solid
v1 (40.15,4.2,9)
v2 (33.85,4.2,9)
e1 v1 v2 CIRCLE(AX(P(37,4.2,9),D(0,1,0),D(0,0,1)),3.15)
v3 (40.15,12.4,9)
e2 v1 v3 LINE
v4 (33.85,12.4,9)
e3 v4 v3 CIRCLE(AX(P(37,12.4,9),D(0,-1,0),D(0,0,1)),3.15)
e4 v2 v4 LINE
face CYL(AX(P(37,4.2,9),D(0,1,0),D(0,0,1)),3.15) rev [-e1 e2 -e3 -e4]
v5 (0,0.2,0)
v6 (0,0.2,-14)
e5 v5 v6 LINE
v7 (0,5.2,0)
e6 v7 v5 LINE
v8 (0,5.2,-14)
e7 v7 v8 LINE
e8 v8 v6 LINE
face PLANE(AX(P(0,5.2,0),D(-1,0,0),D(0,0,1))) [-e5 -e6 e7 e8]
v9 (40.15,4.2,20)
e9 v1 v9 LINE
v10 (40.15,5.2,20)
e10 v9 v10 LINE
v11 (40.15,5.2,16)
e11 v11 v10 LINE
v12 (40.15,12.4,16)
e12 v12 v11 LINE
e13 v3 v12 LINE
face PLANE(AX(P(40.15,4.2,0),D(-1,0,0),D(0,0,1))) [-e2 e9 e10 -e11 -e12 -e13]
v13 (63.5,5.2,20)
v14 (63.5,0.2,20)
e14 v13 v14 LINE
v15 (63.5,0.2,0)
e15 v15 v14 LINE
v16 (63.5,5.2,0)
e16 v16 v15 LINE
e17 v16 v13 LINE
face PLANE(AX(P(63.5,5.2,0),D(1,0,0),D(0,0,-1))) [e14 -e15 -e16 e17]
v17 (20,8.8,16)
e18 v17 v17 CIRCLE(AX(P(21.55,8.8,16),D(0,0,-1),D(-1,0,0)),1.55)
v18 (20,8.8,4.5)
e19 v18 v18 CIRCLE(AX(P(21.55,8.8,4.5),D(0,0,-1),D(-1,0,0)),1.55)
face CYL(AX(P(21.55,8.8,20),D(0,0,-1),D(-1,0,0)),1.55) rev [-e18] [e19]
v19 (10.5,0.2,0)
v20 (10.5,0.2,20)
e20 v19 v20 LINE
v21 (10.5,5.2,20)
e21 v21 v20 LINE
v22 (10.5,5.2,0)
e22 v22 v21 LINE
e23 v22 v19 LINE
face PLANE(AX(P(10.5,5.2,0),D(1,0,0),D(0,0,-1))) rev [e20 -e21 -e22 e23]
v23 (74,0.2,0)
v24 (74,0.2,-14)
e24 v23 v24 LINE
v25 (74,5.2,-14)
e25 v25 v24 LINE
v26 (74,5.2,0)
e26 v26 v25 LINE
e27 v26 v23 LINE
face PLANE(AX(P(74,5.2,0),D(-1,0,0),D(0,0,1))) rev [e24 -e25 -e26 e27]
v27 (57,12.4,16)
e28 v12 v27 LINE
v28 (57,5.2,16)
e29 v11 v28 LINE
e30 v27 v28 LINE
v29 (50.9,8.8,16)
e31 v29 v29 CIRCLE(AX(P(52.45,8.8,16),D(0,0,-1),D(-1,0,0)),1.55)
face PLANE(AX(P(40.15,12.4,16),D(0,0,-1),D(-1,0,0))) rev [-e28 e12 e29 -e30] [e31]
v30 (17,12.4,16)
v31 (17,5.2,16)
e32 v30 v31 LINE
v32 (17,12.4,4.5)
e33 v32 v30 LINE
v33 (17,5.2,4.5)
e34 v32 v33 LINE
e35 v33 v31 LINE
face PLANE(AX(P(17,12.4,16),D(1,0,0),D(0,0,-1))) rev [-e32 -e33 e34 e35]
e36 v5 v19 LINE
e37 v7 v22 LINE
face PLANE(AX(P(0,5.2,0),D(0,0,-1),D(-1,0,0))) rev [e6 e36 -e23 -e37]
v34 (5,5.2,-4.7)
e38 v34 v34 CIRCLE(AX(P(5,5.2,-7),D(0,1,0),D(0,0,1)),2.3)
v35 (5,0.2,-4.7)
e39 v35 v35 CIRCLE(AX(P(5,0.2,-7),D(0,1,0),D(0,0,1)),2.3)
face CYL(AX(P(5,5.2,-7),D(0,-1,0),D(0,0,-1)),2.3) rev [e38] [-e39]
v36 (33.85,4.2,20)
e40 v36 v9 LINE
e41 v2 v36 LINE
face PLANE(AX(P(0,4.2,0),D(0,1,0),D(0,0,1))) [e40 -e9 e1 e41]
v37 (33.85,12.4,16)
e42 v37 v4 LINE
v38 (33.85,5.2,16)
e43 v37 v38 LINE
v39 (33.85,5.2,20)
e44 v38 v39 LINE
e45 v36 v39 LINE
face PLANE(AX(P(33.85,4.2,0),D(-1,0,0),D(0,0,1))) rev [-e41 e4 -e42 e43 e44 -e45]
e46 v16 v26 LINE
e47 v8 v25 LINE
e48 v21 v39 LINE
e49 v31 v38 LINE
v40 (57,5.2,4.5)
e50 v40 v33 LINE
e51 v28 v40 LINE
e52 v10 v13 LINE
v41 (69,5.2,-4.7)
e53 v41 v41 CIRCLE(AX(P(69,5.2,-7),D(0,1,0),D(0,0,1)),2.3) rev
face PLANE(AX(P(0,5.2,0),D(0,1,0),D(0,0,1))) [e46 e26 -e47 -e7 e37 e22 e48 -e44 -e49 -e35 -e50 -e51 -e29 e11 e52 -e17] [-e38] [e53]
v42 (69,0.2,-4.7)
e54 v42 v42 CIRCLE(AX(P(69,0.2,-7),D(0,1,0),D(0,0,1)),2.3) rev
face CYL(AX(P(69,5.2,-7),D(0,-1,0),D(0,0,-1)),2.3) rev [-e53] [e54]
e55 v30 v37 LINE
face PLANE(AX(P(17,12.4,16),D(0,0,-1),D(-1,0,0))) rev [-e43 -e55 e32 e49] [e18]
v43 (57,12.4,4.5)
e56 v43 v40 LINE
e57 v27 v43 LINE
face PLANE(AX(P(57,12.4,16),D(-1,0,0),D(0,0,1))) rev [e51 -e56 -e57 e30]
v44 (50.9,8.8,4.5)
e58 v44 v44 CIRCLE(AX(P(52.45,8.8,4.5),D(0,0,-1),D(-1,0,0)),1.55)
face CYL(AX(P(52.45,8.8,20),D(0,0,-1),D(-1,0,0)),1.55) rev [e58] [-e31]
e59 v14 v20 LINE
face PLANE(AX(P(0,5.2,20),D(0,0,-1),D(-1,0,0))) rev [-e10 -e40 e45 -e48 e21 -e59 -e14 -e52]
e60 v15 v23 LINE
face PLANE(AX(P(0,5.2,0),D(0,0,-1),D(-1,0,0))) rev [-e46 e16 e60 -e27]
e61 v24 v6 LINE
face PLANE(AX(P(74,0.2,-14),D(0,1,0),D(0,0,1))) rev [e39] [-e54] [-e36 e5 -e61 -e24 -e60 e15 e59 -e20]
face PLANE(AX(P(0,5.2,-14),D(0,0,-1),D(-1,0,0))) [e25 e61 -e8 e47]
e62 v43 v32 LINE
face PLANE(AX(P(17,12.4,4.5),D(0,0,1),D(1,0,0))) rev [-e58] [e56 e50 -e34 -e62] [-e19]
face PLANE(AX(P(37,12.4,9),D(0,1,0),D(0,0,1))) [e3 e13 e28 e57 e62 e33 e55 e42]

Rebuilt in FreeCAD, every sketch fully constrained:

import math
import FreeCAD as App
import Part
import Sketcher
from FreeCAD import Vector
Q = App.Units.Quantity


def add_polygon(sketch, points):
    """Adds a closed chain of lines whose ends are joined by coincident constraints."""
    first, n = sketch.GeometryCount, len(points)
    for a, b in zip(points, points[1:] + points[:1]):
        sketch.addGeometry(Part.LineSegment(App.Vector(*a, 0), App.Vector(*b, 0)), False)
    for i in range(n):
        sketch.addConstraint(Sketcher.Constraint("Coincident", first + i, 2, first + (i + 1) % n, 1))

doc = App.newDocument("Part")
body = doc.addObject("PartDesign::Body", "Body")

sketch1 = body.newObject("Sketcher::SketchObject", "Sketch")
sketch1.AttachmentSupport = (doc.getObject("XZ_Plane"), [""])
sketch1.MapMode = "FlatFace"
add_polygon(sketch1, [(0, -14), (0, 0), (10.5, 0), (10.5, 20), (63.5, 20), (63.5, 0), (74, 0), (74, -14)])
sketch1.addGeometry(Part.Circle(Vector(5, -7, 0), Vector(0, 0, 1), 2.3), False)
sketch1.addGeometry(Part.Circle(Vector(69, -7, 0), Vector(0, 0, 1), 2.3), False)
sketch1.addConstraint(Sketcher.Constraint("Vertical", 0))
sketch1.addConstraint(Sketcher.Constraint("Horizontal", 1))
sketch1.addConstraint(Sketcher.Constraint("Vertical", 2))
sketch1.addConstraint(Sketcher.Constraint("Horizontal", 3))
sketch1.addConstraint(Sketcher.Constraint("Vertical", 4))
sketch1.addConstraint(Sketcher.Constraint("Horizontal", 5))
sketch1.addConstraint(Sketcher.Constraint("Vertical", 6))
sketch1.addConstraint(Sketcher.Constraint("Horizontal", 7))
sketch1.addConstraint(Sketcher.Constraint("Coincident", 0, 2, -1, 1))
sketch1.addConstraint(Sketcher.Constraint("Equal", 8, 9))
sketch1.addConstraint(Sketcher.Constraint("PointOnObject", 4, 2, -1))
sketch1.addConstraint(Sketcher.Constraint("Horizontal", 8, 3, 9, 3))
sketch1.addConstraint(Sketcher.Constraint("Equal", 1, 5))
sketch1.addConstraint(Sketcher.Constraint("Diameter", 8, Q("4.6 mm")))
sketch1.addConstraint(Sketcher.Constraint("DistanceX", 3, 1, 3, 2, Q("53 mm")))
sketch1.addConstraint(Sketcher.Constraint("DistanceX", 7, 2, 7, 1, Q("74 mm")))
sketch1.addConstraint(Sketcher.Constraint("DistanceY", 0, 1, 0, 2, Q("14 mm")))
sketch1.addConstraint(Sketcher.Constraint("DistanceY", 2, 1, 2, 2, Q("20 mm")))
sketch1.addConstraint(Sketcher.Constraint("DistanceX", -1, 1, 8, 3, Q("5 mm")))
sketch1.addConstraint(Sketcher.Constraint("DistanceY", 8, 3, -1, 1, Q("7 mm")))
sketch1.addConstraint(Sketcher.Constraint("DistanceX", -1, 1, 9, 3, Q("69 mm")))
pad1 = body.newObject("PartDesign::Pad", "Pad")
pad1.Profile = sketch1
pad1.Length = 5.2
pad1.Reversed = True

sketch2 = body.newObject("Sketcher::SketchObject", "Sketch001")
sketch2.AttachmentSupport = (doc.getObject("XZ_Plane"), [""])
sketch2.MapMode = "FlatFace"
sketch2.AttachmentOffset = App.Placement(Vector(0, 0, -5.2), App.Rotation())
sketch2.addGeometry(Part.ArcOfCircle(Part.Circle(Vector(37, 9, 0), Vector(0, 0, 1), 3.15), math.radians(180), math.radians(270)), False)
sketch2.addGeometry(Part.LineSegment(Vector(33.85, 9, 0), Vector(33.85, 20, 0)), False)
sketch2.addGeometry(Part.LineSegment(Vector(33.85, 20, 0), Vector(40.15, 20, 0)), False)
sketch2.addGeometry(Part.LineSegment(Vector(40.15, 20, 0), Vector(40.15, 9, 0)), False)
sketch2.addGeometry(Part.ArcOfCircle(Part.Circle(Vector(37, 9, 0), Vector(0, 0, 1), 3.15), math.radians(-90), math.radians(0)), False)
sketch2.addConstraint(Sketcher.Constraint("Tangent", 0, 1, 1, 1))
sketch2.addConstraint(Sketcher.Constraint("Coincident", 1, 2, 2, 1))
sketch2.addConstraint(Sketcher.Constraint("Coincident", 2, 2, 3, 1))
sketch2.addConstraint(Sketcher.Constraint("Tangent", 3, 2, 4, 2))
sketch2.addConstraint(Sketcher.Constraint("Tangent", 4, 1, 0, 2))
sketch2.addConstraint(Sketcher.Constraint("Vertical", 1))
sketch2.addConstraint(Sketcher.Constraint("Horizontal", 2))
sketch2.addConstraint(Sketcher.Constraint("Vertical", 3))
sketch2.addConstraint(Sketcher.Constraint("Equal", 0, 4))
sketch2.addConstraint(Sketcher.Constraint("Vertical", 0, 3, 4, 1))
sketch2.addConstraint(Sketcher.Constraint("DistanceY", 1, 1, 1, 2, Q("11 mm")))
sketch2.addConstraint(Sketcher.Constraint("Radius", 0, Q("3.15 mm")))
sketch2.addConstraint(Sketcher.Constraint("DistanceX", -1, 1, 0, 3, Q("37 mm")))
sketch2.addConstraint(Sketcher.Constraint("DistanceY", -1, 1, 0, 3, Q("9 mm")))
pocket1 = body.newObject("PartDesign::Pocket", "Pocket")
pocket1.Profile = sketch2
pocket1.Length = 1
pocket1.Reversed = True

sketch3 = body.newObject("Sketcher::SketchObject", "Sketch002")
sketch3.AttachmentSupport = (doc.getObject("XZ_Plane"), [""])
sketch3.MapMode = "FlatFace"
sketch3.AttachmentOffset = App.Placement(Vector(0, 0, -12.4), App.Rotation())
sketch3.addGeometry(Part.LineSegment(Vector(33.85, 16, 0), Vector(33.85, 9, 0)), False)
sketch3.addGeometry(Part.ArcOfCircle(Part.Circle(Vector(37, 9, 0), Vector(0, 0, 1), 3.15), math.radians(180), math.radians(360)), False)
sketch3.addGeometry(Part.LineSegment(Vector(40.15, 9, 0), Vector(40.15, 16, 0)), False)
sketch3.addGeometry(Part.LineSegment(Vector(40.15, 16, 0), Vector(57, 16, 0)), False)
sketch3.addGeometry(Part.LineSegment(Vector(57, 16, 0), Vector(57, 4.5, 0)), False)
sketch3.addGeometry(Part.LineSegment(Vector(57, 4.5, 0), Vector(17, 4.5, 0)), False)
sketch3.addGeometry(Part.LineSegment(Vector(17, 4.5, 0), Vector(17, 16, 0)), False)
sketch3.addGeometry(Part.LineSegment(Vector(17, 16, 0), Vector(33.85, 16, 0)), False)
sketch3.addConstraint(Sketcher.Constraint("Tangent", 0, 2, 1, 1))
sketch3.addConstraint(Sketcher.Constraint("Tangent", 1, 2, 2, 1))
sketch3.addConstraint(Sketcher.Constraint("Coincident", 2, 2, 3, 1))
sketch3.addConstraint(Sketcher.Constraint("Coincident", 3, 2, 4, 1))
sketch3.addConstraint(Sketcher.Constraint("Coincident", 4, 2, 5, 1))
sketch3.addConstraint(Sketcher.Constraint("Coincident", 5, 2, 6, 1))
sketch3.addConstraint(Sketcher.Constraint("Coincident", 6, 2, 7, 1))
sketch3.addConstraint(Sketcher.Constraint("Coincident", 7, 2, 0, 1))
sketch3.addConstraint(Sketcher.Constraint("Vertical", 0))
sketch3.addConstraint(Sketcher.Constraint("Vertical", 2))
sketch3.addConstraint(Sketcher.Constraint("Horizontal", 3))
sketch3.addConstraint(Sketcher.Constraint("Vertical", 4))
sketch3.addConstraint(Sketcher.Constraint("Horizontal", 5))
sketch3.addConstraint(Sketcher.Constraint("Vertical", 6))
sketch3.addConstraint(Sketcher.Constraint("Horizontal", 7))
sketch3.addConstraint(Sketcher.Constraint("Horizontal", 3, 2, 6, 2))
sketch3.addConstraint(Sketcher.Constraint("Equal", 3, 7))
sketch3.addConstraint(Sketcher.Constraint("DistanceX", 5, 2, 5, 1, Q("40 mm")))
sketch3.addConstraint(Sketcher.Constraint("DistanceY", 0, 2, 0, 1, Q("7 mm")))
sketch3.addConstraint(Sketcher.Constraint("Radius", 1, Q("3.15 mm")))
sketch3.addConstraint(Sketcher.Constraint("DistanceY", 4, 2, 4, 1, Q("11.5 mm")))
sketch3.addConstraint(Sketcher.Constraint("DistanceX", -1, 1, 1, 3, Q("37 mm")))
sketch3.addConstraint(Sketcher.Constraint("DistanceY", -1, 1, 1, 3, Q("9 mm")))
pad2 = body.newObject("PartDesign::Pad", "Pad001")
pad2.Profile = sketch3
pad2.Length = 7.2

sketch4 = body.newObject("Sketcher::SketchObject", "Sketch003")
sketch4.AttachmentSupport = (doc.getObject("XY_Plane"), [""])
sketch4.MapMode = "FlatFace"
sketch4.AttachmentOffset = App.Placement(Vector(0, 0, 4.5), App.Rotation())
sketch4.addGeometry(Part.Circle(Vector(52.45, 8.8, 0), Vector(0, 0, 1), 1.55), False)
sketch4.addGeometry(Part.Circle(Vector(21.55, 8.8, 0), Vector(0, 0, 1), 1.55), False)
sketch4.addConstraint(Sketcher.Constraint("Equal", 0, 1))
sketch4.addConstraint(Sketcher.Constraint("Horizontal", 0, 3, 1, 3))
sketch4.addConstraint(Sketcher.Constraint("Diameter", 0, Q("3.1 mm")))
sketch4.addConstraint(Sketcher.Constraint("DistanceY", -1, 1, 0, 3, Q("8.8 mm")))
sketch4.addConstraint(Sketcher.Constraint("DistanceX", 1, 3, 0, 3, Q("30.9 mm")))
sketch4.addConstraint(Sketcher.Constraint("DistanceX", -1, 1, 0, 3, Q("52.45 mm")))
pocket2 = body.newObject("PartDesign::Pocket", "Pocket001")
pocket2.Profile = sketch4
pocket2.Type = "ThroughAll"
pocket2.Reversed = True

sketch5 = body.newObject("Sketcher::SketchObject", "Sketch004")
sketch5.AttachmentSupport = (doc.getObject("YZ_Plane"), [""])
sketch5.MapMode = "FlatFace"
add_polygon(sketch5, [(0.2, -14), (0, -14), (0, 20), (0.2, 20)])
sketch5.addConstraint(Sketcher.Constraint("Horizontal", 0))
sketch5.addConstraint(Sketcher.Constraint("Vertical", 1))
sketch5.addConstraint(Sketcher.Constraint("Horizontal", 2))
sketch5.addConstraint(Sketcher.Constraint("Vertical", 3))
sketch5.addConstraint(Sketcher.Constraint("PointOnObject", 0, 2, -2))
sketch5.addConstraint(Sketcher.Constraint("DistanceY", 1, 1, 1, 2, Q("34 mm")))
sketch5.addConstraint(Sketcher.Constraint("DistanceX", 0, 2, 0, 1, Q("0.2 mm")))
sketch5.addConstraint(Sketcher.Constraint("DistanceY", 0, 2, -1, 1, Q("14 mm")))
pocket3 = body.newObject("PartDesign::Pocket", "Pocket002")
pocket3.Profile = sketch5
pocket3.Type = "ThroughAll"
pocket3.Reversed = True

doc.recompute()
